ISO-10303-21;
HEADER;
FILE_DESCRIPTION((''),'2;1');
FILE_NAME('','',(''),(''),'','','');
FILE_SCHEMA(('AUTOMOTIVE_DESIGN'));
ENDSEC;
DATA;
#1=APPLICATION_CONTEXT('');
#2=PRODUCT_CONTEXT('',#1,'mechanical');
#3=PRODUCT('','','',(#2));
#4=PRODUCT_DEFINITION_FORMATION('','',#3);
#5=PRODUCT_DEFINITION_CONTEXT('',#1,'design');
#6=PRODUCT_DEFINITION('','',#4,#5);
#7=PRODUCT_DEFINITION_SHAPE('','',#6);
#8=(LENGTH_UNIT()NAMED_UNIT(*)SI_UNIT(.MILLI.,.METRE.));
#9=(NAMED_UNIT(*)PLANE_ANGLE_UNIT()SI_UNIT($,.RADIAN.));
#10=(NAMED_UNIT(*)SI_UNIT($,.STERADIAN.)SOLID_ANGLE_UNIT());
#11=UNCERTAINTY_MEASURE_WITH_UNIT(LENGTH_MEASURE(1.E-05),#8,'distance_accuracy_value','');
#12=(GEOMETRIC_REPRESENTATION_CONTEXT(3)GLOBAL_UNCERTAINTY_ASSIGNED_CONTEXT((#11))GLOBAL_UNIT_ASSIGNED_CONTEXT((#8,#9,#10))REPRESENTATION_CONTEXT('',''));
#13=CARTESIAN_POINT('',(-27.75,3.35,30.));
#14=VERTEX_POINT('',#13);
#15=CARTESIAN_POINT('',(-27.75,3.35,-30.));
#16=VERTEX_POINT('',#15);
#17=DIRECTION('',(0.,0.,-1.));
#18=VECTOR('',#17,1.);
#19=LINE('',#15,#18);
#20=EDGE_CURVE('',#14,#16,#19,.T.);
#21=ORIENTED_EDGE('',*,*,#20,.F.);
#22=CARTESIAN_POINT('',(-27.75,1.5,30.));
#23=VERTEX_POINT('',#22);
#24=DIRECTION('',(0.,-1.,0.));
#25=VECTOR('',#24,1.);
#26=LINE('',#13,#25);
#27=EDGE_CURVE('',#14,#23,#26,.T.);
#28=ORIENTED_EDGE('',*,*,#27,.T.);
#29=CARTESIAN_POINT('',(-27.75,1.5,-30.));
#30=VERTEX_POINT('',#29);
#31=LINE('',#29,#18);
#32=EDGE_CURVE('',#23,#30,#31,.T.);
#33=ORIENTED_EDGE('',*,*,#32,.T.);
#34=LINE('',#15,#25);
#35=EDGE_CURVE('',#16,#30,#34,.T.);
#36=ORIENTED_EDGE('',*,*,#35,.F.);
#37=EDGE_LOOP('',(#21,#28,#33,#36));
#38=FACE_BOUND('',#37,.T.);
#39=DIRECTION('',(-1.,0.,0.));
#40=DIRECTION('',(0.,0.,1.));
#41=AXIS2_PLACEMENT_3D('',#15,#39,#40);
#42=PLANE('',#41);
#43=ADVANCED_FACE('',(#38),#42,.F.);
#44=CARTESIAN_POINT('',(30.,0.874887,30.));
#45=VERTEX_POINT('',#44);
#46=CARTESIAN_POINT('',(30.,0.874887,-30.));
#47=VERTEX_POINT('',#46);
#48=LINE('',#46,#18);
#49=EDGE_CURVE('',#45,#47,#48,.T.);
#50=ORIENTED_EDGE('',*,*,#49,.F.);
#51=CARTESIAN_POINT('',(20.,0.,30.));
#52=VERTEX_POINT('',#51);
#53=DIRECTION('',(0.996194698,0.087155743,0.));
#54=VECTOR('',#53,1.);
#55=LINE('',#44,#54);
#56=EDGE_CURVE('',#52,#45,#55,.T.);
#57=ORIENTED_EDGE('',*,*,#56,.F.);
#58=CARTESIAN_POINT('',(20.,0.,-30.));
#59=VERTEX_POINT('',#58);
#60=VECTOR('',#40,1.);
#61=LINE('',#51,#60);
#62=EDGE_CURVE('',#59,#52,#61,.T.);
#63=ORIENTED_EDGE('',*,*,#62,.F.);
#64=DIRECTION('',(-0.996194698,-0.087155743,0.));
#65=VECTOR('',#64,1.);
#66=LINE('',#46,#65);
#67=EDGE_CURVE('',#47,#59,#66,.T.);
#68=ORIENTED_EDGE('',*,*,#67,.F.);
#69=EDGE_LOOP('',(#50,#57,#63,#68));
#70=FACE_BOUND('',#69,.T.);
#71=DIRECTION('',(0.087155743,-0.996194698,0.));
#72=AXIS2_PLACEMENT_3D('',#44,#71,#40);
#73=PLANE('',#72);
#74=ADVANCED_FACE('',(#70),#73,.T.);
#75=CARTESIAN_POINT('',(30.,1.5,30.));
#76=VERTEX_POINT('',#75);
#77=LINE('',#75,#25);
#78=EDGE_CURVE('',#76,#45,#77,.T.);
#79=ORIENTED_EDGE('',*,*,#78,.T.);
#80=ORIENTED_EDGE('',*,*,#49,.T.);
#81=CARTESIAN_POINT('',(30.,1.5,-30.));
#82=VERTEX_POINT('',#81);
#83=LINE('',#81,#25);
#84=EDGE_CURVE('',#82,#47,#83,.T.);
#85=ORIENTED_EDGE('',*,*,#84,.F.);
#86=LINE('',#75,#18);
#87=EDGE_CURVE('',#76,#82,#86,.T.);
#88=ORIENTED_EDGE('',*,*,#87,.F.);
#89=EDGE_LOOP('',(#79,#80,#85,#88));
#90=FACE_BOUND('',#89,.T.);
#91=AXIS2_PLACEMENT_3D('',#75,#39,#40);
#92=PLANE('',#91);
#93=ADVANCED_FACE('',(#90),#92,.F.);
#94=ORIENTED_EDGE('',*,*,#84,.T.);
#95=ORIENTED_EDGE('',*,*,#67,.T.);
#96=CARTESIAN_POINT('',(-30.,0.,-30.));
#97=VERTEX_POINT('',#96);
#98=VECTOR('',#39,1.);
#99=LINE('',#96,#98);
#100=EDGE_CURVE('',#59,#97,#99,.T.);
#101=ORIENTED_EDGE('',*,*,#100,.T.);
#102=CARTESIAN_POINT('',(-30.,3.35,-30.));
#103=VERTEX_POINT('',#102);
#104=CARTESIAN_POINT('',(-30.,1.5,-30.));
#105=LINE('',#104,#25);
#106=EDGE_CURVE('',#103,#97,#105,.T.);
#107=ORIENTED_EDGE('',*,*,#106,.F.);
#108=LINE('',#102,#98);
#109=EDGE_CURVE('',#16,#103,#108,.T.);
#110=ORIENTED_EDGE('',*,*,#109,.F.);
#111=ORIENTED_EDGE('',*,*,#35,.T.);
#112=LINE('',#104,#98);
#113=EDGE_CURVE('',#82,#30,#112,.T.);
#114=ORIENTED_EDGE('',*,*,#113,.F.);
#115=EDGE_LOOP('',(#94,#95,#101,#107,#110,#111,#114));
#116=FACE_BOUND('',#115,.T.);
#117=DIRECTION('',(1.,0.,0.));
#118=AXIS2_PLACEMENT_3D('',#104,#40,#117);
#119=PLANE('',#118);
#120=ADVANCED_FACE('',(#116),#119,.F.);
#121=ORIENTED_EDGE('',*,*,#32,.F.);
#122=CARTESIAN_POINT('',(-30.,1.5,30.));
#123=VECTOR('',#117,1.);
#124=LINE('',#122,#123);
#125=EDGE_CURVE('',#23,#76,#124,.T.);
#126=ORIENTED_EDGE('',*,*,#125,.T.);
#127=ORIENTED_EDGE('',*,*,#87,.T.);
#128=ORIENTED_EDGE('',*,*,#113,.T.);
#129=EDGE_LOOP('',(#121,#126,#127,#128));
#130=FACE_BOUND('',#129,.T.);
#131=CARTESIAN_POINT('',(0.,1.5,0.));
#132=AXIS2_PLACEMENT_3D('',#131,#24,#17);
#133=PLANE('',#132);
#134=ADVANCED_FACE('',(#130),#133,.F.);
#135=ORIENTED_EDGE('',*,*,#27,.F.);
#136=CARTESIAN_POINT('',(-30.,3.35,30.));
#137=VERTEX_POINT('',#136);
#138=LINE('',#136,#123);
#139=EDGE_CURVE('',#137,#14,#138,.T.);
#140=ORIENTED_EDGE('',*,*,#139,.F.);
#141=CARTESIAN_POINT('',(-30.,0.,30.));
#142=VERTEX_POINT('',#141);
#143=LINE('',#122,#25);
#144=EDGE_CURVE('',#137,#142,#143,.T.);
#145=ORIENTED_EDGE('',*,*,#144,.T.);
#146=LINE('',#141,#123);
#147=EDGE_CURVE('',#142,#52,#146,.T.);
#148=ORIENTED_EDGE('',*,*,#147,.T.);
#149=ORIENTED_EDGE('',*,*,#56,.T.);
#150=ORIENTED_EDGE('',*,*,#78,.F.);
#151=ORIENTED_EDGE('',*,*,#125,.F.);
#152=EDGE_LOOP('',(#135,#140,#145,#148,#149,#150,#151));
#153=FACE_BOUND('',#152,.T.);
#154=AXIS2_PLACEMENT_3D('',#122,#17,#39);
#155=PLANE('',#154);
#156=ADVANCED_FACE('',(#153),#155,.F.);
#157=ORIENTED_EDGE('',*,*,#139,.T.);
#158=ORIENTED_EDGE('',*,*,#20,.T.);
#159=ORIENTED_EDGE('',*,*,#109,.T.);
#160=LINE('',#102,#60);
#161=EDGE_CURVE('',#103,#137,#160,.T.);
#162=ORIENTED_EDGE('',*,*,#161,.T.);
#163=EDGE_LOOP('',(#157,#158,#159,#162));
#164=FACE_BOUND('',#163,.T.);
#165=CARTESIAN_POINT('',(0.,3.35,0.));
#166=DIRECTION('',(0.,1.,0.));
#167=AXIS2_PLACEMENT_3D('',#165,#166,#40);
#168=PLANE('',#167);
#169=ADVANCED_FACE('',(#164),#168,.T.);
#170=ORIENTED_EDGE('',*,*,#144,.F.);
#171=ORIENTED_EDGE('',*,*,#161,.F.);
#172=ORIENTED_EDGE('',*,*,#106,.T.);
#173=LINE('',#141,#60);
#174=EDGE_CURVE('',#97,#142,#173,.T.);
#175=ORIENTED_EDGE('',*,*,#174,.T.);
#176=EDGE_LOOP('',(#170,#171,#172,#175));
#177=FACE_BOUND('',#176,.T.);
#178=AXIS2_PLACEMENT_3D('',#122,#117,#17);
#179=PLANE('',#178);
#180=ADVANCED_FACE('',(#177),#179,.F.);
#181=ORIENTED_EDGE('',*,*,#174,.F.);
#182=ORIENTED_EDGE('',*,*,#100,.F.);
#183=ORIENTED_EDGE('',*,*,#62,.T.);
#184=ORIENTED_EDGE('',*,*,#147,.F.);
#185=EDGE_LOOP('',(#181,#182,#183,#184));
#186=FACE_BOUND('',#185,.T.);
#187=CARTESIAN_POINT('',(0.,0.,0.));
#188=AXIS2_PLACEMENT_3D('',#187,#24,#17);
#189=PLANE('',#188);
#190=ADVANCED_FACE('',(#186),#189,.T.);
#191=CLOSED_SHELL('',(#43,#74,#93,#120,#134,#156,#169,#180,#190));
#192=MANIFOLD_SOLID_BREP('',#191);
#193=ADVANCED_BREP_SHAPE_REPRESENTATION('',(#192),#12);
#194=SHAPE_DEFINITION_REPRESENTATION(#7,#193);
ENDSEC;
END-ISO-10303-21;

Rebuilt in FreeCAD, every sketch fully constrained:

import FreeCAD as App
import Part
import Sketcher
from FreeCAD import Vector


def edges_at(feature, points):
    """Names of the edges that pass closest to the given points."""
    edges = feature.Shape.Edges
    near = lambda p: min(range(len(edges)), key=lambda i: edges[i].distToShape(Part.Vertex(*p))[0])
    return sorted({f"Edge{near(p) + 1}" for p in points})

doc = App.newDocument("Part")
body = doc.addObject("PartDesign::Body", "Body")

# Sketch on XZ plane
sketch1 = body.newObject("Sketcher::SketchObject", "Sketch")
sketch1.AttachmentSupport = (doc.getObject("XZ_Plane"), [""])
sketch1.MapMode = "FlatFace"
sketch1.addGeometry([
    Part.LineSegment(Vector(-30, -30, 0), Vector(-30, 30, 0)),
    Part.LineSegment(Vector(-30, 30, 0), Vector(30, 30, 0)),
    Part.LineSegment(Vector(30, 30, 0), Vector(30, -30, 0)),
    Part.LineSegment(Vector(30, -30, 0), Vector(-30, -30, 0)),
], False)
sketch1.addConstraint([
    Sketcher.Constraint("Coincident", 0, 2, 1, 1),
    Sketcher.Constraint("Coincident", 1, 2, 2, 1),
    Sketcher.Constraint("Coincident", 2, 2, 3, 1),
    Sketcher.Constraint("Coincident", 3, 2, 0, 1),
    Sketcher.Constraint("Vertical", 0),
    Sketcher.Constraint("Horizontal", 1),
    Sketcher.Constraint("Vertical", 2),
    Sketcher.Constraint("Horizontal", 3),
    Sketcher.Constraint("Symmetric", 0, 2, 2, 2, -1, 1),
    Sketcher.Constraint("Equal", 3, 0),
    Sketcher.Constraint("DistanceX", 1, 1, 1, 2, 60.0),
])
pad1 = body.newObject("PartDesign::Pad", "Pad")
pad1.Profile = sketch1
pad1.Length = 1.5
pad1.Reversed = True

# Sketch on XZ plane
sketch2 = body.newObject("Sketcher::SketchObject", "Sketch001")
sketch2.AttachmentSupport = (doc.getObject("XZ_Plane"), [""])
sketch2.MapMode = "FlatFace"
sketch2.AttachmentOffset = App.Placement(Vector(0, 0, -1.5), App.Rotation())
sketch2.addGeometry([
    Part.LineSegment(Vector(-30, -30, 0), Vector(-30, 30, 0)),
    Part.LineSegment(Vector(-30, 30, 0), Vector(-27.75, 30, 0)),
    Part.LineSegment(Vector(-27.75, 30, 0), Vector(-27.75, -30, 0)),
    Part.LineSegment(Vector(-27.75, -30, 0), Vector(-30, -30, 0)),
], False)
sketch2.addConstraint([
    Sketcher.Constraint("Coincident", 0, 2, 1, 1),
    Sketcher.Constraint("Coincident", 1, 2, 2, 1),
    Sketcher.Constraint("Coincident", 2, 2, 3, 1),
    Sketcher.Constraint("Coincident", 3, 2, 0, 1),
    Sketcher.Constraint("Vertical", 0),
    Sketcher.Constraint("Horizontal", 1),
    Sketcher.Constraint("Vertical", 2),
    Sketcher.Constraint("Horizontal", 3),
    Sketcher.Constraint("DistanceY", 0, 1, 0, 2, 60.0),
    Sketcher.Constraint("DistanceX", 0, 2, -1, 1, 30.0),
    Sketcher.Constraint("DistanceY", -1, 1, 0, 2, 30.0),
    Sketcher.Constraint("DistanceX", 1, 1, 1, 2, 2.25),
])
pad2 = body.newObject("PartDesign::Pad", "Pad001")
pad2.Profile = sketch2
pad2.Length = 1.85
pad2.Reversed = True
doc.recompute()

chamfer = body.newObject("PartDesign::Chamfer", "Chamfer")
chamfer.Base = (pad2, edges_at(pad2, [(30, 0, 0)]))
chamfer.ChamferType = "Two distances"
chamfer.Size = 10
chamfer.Size2 = 0.874887

doc.recompute()
